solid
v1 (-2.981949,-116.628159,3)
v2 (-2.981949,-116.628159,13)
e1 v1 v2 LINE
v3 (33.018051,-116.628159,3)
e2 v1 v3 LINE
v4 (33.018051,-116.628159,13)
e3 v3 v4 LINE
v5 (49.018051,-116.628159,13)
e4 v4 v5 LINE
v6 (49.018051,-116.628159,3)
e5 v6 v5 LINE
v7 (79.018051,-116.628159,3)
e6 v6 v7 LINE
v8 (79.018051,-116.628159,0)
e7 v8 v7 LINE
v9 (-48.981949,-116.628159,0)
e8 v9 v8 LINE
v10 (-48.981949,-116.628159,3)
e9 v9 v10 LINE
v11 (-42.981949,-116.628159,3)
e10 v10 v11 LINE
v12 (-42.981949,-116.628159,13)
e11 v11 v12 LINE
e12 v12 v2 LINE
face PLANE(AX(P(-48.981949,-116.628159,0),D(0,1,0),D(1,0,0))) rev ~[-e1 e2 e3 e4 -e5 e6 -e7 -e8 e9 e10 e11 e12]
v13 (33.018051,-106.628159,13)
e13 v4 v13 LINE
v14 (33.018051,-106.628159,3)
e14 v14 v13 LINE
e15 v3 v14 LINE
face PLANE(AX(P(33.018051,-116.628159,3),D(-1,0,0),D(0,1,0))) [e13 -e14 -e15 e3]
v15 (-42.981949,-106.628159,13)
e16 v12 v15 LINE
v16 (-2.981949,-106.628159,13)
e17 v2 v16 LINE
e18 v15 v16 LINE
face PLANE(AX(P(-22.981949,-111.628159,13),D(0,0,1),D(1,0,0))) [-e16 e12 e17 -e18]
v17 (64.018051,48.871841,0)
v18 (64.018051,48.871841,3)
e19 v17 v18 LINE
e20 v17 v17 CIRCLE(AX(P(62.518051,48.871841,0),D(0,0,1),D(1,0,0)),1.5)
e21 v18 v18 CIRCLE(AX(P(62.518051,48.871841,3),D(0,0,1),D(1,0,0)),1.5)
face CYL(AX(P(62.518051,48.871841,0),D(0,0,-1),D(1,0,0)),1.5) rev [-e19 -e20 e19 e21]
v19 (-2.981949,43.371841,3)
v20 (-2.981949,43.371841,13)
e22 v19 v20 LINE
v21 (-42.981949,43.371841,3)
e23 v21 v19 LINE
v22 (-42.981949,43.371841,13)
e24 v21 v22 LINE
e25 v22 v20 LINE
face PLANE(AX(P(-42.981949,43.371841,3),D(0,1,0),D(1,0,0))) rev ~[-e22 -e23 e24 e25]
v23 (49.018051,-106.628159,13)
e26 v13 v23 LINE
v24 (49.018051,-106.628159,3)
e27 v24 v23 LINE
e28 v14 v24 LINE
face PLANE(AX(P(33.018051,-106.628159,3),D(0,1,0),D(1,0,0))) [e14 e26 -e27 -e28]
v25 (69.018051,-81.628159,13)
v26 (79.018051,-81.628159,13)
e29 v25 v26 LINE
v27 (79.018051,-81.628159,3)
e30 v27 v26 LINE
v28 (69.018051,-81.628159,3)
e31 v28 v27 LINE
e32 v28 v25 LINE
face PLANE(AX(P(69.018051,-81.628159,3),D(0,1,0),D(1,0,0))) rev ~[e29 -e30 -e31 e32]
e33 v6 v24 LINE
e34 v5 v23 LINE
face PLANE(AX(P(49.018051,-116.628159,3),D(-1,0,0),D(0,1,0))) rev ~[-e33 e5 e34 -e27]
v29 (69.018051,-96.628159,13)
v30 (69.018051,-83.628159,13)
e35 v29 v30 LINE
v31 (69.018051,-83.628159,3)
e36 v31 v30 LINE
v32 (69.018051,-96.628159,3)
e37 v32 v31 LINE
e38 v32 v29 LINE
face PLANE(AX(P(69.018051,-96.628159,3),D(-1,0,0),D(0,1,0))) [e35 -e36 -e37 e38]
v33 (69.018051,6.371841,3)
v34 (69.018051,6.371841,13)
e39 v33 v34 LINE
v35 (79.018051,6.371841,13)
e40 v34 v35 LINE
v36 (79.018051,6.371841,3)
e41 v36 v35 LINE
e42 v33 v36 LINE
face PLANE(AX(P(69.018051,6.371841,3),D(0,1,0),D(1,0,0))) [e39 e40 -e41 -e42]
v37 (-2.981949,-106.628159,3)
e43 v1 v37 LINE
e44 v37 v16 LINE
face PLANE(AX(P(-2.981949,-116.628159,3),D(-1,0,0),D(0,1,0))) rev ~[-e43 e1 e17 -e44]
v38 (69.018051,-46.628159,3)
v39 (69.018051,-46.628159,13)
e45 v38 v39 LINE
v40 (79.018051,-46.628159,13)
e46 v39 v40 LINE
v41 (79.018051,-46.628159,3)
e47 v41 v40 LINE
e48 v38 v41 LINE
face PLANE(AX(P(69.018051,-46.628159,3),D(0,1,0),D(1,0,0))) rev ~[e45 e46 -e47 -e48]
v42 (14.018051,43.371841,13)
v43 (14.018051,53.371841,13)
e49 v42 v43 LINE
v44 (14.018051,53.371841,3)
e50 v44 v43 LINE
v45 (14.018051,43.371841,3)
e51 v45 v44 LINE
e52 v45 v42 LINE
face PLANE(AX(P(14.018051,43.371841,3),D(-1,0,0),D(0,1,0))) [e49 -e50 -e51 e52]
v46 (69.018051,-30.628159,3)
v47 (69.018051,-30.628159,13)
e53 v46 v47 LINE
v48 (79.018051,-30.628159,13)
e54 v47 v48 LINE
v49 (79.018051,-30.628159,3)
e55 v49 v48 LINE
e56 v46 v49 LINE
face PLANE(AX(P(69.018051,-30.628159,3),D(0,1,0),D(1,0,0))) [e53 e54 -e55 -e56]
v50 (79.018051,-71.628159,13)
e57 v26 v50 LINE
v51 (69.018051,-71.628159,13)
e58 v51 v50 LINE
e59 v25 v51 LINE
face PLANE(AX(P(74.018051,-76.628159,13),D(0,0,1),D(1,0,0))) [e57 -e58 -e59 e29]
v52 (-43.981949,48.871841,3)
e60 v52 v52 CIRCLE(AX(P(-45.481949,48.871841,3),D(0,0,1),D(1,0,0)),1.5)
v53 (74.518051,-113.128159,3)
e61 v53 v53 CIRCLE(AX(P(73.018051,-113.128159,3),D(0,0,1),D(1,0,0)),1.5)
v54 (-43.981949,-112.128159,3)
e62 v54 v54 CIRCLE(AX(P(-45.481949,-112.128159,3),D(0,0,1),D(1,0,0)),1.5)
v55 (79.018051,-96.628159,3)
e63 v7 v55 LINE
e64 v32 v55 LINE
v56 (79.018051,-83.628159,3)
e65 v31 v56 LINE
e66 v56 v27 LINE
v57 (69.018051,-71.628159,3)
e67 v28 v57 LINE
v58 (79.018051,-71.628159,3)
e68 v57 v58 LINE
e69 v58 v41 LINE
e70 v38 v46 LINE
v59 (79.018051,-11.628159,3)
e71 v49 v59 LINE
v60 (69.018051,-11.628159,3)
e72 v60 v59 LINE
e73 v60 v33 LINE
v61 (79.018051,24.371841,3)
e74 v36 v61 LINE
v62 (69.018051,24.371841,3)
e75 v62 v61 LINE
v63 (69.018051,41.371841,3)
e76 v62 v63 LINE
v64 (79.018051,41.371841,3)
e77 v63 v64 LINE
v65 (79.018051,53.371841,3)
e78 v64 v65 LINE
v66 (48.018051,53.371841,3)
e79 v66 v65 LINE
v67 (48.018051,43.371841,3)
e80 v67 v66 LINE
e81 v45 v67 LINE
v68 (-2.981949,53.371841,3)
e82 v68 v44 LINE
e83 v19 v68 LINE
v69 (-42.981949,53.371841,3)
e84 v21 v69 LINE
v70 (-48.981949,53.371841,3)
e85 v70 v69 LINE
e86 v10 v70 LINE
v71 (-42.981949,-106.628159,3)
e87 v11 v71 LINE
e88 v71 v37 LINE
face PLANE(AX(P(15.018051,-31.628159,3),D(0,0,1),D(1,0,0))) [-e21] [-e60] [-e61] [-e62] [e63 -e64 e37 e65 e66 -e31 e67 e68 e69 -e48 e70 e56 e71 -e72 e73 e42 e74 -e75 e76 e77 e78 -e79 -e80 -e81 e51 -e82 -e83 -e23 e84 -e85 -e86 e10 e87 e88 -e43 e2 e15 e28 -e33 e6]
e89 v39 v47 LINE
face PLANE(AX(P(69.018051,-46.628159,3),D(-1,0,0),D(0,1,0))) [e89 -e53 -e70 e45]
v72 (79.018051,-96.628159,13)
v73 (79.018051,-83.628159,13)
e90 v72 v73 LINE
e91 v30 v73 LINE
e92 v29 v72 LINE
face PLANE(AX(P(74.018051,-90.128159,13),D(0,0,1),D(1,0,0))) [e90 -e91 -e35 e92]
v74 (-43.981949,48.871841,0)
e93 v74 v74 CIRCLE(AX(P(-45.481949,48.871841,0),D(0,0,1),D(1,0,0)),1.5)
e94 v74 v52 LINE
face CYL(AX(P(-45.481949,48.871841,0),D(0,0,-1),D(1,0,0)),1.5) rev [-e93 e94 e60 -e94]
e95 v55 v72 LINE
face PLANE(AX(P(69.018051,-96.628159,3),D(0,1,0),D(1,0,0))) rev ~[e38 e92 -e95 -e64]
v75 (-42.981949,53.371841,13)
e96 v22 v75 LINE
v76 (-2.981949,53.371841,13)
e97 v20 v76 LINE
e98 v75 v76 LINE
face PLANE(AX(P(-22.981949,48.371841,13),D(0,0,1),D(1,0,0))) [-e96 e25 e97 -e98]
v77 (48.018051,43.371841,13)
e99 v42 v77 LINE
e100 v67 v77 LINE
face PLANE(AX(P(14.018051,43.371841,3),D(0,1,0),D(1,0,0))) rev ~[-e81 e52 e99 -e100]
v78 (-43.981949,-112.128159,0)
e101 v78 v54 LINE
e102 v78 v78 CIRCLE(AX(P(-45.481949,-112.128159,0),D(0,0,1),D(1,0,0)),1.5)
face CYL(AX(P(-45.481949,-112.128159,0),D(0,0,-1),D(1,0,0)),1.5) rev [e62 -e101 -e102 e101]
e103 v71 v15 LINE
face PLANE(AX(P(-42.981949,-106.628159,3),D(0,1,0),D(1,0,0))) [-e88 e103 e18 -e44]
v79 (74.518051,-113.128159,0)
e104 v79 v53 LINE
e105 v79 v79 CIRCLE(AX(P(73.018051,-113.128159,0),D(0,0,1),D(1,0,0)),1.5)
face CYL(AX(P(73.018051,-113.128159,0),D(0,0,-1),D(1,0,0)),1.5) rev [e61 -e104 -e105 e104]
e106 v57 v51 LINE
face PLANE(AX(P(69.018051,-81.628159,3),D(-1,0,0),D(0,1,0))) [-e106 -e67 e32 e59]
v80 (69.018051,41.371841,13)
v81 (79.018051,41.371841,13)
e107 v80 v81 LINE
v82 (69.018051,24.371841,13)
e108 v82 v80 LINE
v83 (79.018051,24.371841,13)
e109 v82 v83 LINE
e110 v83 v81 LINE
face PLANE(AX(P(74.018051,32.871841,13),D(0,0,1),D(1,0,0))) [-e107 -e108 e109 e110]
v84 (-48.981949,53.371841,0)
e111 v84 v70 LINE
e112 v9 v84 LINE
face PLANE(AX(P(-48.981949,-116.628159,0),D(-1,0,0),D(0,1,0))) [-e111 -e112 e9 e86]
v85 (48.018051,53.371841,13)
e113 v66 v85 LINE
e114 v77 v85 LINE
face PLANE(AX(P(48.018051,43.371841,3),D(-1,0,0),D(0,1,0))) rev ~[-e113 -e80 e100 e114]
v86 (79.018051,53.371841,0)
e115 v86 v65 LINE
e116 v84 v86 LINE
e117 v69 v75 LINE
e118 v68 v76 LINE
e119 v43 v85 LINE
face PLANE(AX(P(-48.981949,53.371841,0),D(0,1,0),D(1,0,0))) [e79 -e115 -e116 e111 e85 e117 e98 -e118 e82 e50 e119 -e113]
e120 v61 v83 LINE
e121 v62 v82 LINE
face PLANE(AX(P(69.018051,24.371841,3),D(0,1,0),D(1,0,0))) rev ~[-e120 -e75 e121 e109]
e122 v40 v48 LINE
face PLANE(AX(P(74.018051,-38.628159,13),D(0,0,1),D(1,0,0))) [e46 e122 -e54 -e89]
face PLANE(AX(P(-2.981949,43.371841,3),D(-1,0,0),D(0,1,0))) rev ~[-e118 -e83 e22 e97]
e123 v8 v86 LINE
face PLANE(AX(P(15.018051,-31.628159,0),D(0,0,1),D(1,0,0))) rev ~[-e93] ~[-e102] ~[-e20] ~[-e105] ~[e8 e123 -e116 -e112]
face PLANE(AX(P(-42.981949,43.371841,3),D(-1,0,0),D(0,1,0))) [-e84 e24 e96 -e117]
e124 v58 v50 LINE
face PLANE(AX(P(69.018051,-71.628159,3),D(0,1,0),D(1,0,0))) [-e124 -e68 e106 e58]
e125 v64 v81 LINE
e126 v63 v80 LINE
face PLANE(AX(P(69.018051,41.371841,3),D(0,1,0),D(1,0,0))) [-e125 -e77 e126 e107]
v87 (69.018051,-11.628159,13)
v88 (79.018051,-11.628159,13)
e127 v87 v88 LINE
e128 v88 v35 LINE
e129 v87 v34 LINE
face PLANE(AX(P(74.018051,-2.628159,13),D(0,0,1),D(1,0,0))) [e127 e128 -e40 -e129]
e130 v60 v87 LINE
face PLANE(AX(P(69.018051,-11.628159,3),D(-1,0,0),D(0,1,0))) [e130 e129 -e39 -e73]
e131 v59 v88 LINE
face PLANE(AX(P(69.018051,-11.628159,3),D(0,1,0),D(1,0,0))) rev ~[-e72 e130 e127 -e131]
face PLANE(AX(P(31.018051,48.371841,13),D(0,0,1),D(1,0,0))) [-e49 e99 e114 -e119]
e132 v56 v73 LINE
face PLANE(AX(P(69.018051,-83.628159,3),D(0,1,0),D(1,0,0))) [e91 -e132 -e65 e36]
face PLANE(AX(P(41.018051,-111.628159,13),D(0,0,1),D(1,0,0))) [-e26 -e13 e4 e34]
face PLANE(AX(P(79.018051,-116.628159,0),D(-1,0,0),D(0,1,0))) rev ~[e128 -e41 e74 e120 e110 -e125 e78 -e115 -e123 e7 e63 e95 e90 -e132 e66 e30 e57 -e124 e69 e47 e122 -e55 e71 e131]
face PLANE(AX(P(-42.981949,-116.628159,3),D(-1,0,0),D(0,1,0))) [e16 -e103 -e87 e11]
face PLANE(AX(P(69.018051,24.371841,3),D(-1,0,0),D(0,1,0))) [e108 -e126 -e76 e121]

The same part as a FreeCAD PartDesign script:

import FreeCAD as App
import Part
import Sketcher

V = App.Vector
Q = App.Units.Quantity


def add_polygon(sketch, points):
    """Adds a closed chain of lines whose ends are joined by coincident constraints."""
    first, n = sketch.GeometryCount, len(points)
    for a, b in zip(points, points[1:] + points[:1]):
        sketch.addGeometry(Part.LineSegment(App.Vector(*a, 0), App.Vector(*b, 0)), False)
    for i in range(n):
        sketch.addConstraint(Sketcher.Constraint("Coincident", first + i, 2, first + (i + 1) % n, 1))

doc = App.newDocument("Part")
body = doc.addObject("PartDesign::Body", "Body")

# Sketch on XY plane
sketch1 = doc.addObject("Sketcher::SketchObject", "Sketch")
body.addObject(sketch1)
sketch1.AttachmentSupport = (doc.XY_Plane, [""])
sketch1.MapMode = "FlatFace"
add_polygon(sketch1, [(-49, 53.4), (-49, -116.6), (79, -116.6), (79, 53.4)])  # lines 0-3
sketch1.addGeometry(Part.Circle(V(-45.5, -112.1, 0), V(0, 0, 1), 1.5), False)  # 4
sketch1.addGeometry(Part.Circle(V(73, -113.1, 0), V(0, 0, 1), 1.5), False)  # 5
sketch1.addGeometry(Part.Circle(V(-45.5, 48.9, 0), V(0, 0, 1), 1.5), False)  # 6
sketch1.addGeometry(Part.Circle(V(62.5, 48.9, 0), V(0, 0, 1), 1.5), False)  # 7
sketch1.addConstraint(Sketcher.Constraint("Vertical", 0))
sketch1.addConstraint(Sketcher.Constraint("Horizontal", 1))
sketch1.addConstraint(Sketcher.Constraint("Vertical", 2))
sketch1.addConstraint(Sketcher.Constraint("Horizontal", 3))
sketch1.addConstraint(Sketcher.Constraint("Equal", 4, 5))
sketch1.addConstraint(Sketcher.Constraint("Equal", 5, 6))
sketch1.addConstraint(Sketcher.Constraint("Equal", 6, 7))
sketch1.addConstraint(Sketcher.Constraint("Horizontal", 6, 3, 7, 3))
sketch1.addConstraint(Sketcher.Constraint("Vertical", 4, 3, 6, 3))
sketch1.addConstraint(Sketcher.Constraint("Diameter", 4, Q("3 mm")))
sketch1.addConstraint(Sketcher.Constraint("DistanceX", 1, 1, 1, 2, Q("128 mm")))
sketch1.addConstraint(Sketcher.Constraint("DistanceY", 0, 2, 0, 1, Q("170 mm")))
sketch1.addConstraint(Sketcher.Constraint("DistanceY", 5, 3, 4, 3, Q("1 mm")))
sketch1.addConstraint(Sketcher.Constraint("DistanceY", 4, 3, 6, 3, Q("161 mm")))
sketch1.addConstraint(Sketcher.Constraint("DistanceX", 6, 3, 7, 3, Q("108 mm")))
sketch1.addConstraint(Sketcher.Constraint("DistanceX", 0, 2, 5, 3, Q("122 mm")))
sketch1.addConstraint(Sketcher.Constraint("DistanceX", 4, 3, 5, 3, Q("118.5 mm")))
sketch1.addConstraint(Sketcher.Constraint("DistanceY", 0, 2, 4, 3, Q("4.5 mm")))
sketch1.addConstraint(Sketcher.Constraint("DistanceX", 4, 3, -1, 1, Q("45.481949 mm")))
sketch1.addConstraint(Sketcher.Constraint("DistanceY", 4, 3, -1, 1, Q("112.128159 mm")))
pad1 = doc.addObject("PartDesign::Pad", "Pad")
body.addObject(pad1)
pad1.Profile = sketch1
pad1.Length = 3

# Sketch on XY plane
sketch2 = doc.addObject("Sketcher::SketchObject", "Sketch001")
body.addObject(sketch2)
sketch2.AttachmentSupport = (doc.XY_Plane, [""])
sketch2.MapMode = "FlatFace"
sketch2.AttachmentOffset = App.Placement(V(0, 0, 3), App.Rotation())
add_polygon(sketch2, [(-43, -107), (-43, -117), (-3, -117), (-3, -107)])  # lines 0-3
add_polygon(sketch2, [(33, -107), (33, -117), (49, -117), (49, -107)])  # lines 4-7
add_polygon(sketch2, [(69, -84), (69, -97), (79, -97), (79, -84)])  # lines 8-11
add_polygon(sketch2, [(69, -72), (69, -82), (79, -82), (79, -72)])  # lines 12-15
add_polygon(sketch2, [(69, -31), (69, -47), (79, -47), (79, -31)])  # lines 16-19
add_polygon(sketch2, [(69, 6), (69, -12), (79, -12), (79, 6)])  # lines 20-23
add_polygon(sketch2, [(69, 41), (69, 24), (79, 24), (79, 41)])  # lines 24-27
add_polygon(sketch2, [(14, 53), (14, 43), (48, 43), (48, 53)])  # lines 28-31
add_polygon(sketch2, [(-43, 53), (-43, 43), (-3, 43), (-3, 53)])  # lines 32-35
sketch2.addConstraint(Sketcher.Constraint("Vertical", 0))
sketch2.addConstraint(Sketcher.Constraint("Horizontal", 1))
sketch2.addConstraint(Sketcher.Constraint("Vertical", 2))
sketch2.addConstraint(Sketcher.Constraint("Horizontal", 3))
sketch2.addConstraint(Sketcher.Constraint("Vertical", 4))
sketch2.addConstraint(Sketcher.Constraint("Horizontal", 5))
sketch2.addConstraint(Sketcher.Constraint("Vertical", 6))
sketch2.addConstraint(Sketcher.Constraint("Horizontal", 7))
sketch2.addConstraint(Sketcher.Constraint("Vertical", 8))
sketch2.addConstraint(Sketcher.Constraint("Horizontal", 9))
sketch2.addConstraint(Sketcher.Constraint("Vertical", 10))
sketch2.addConstraint(Sketcher.Constraint("Horizontal", 11))
sketch2.addConstraint(Sketcher.Constraint("Vertical", 12))
sketch2.addConstraint(Sketcher.Constraint("Horizontal", 13))
sketch2.addConstraint(Sketcher.Constraint("Vertical", 14))
sketch2.addConstraint(Sketcher.Constraint("Horizontal", 15))
sketch2.addConstraint(Sketcher.Constraint("Vertical", 16))
sketch2.addConstraint(Sketcher.Constraint("Horizontal", 17))
sketch2.addConstraint(Sketcher.Constraint("Vertical", 18))
sketch2.addConstraint(Sketcher.Constraint("Horizontal", 19))
sketch2.addConstraint(Sketcher.Constraint("Vertical", 20))
sketch2.addConstraint(Sketcher.Constraint("Horizontal", 21))
sketch2.addConstraint(Sketcher.Constraint("Vertical", 22))
sketch2.addConstraint(Sketcher.Constraint("Horizontal", 23))
sketch2.addConstraint(Sketcher.Constraint("Vertical", 24))
sketch2.addConstraint(Sketcher.Constraint("Horizontal", 25))
sketch2.addConstraint(Sketcher.Constraint("Vertical", 26))
sketch2.addConstraint(Sketcher.Constraint("Horizontal", 27))
sketch2.addConstraint(Sketcher.Constraint("Vertical", 28))
sketch2.addConstraint(Sketcher.Constraint("Horizontal", 29))
sketch2.addConstraint(Sketcher.Constraint("Vertical", 30))
sketch2.addConstraint(Sketcher.Constraint("Horizontal", 31))
sketch2.addConstraint(Sketcher.Constraint("Vertical", 32))
sketch2.addConstraint(Sketcher.Constraint("Horizontal", 33))
sketch2.addConstraint(Sketcher.Constraint("Vertical", 34))
sketch2.addConstraint(Sketcher.Constraint("Horizontal", 35))
sketch2.addConstraint(Sketcher.Constraint("Horizontal", 1, 2, 4, 2))
sketch2.addConstraint(Sketcher.Constraint("Horizontal", 3, 2, 6, 2))
sketch2.addConstraint(Sketcher.Constraint("Horizontal", 29, 2, 32, 2))
sketch2.addConstraint(Sketcher.Constraint("Horizontal", 31, 2, 34, 2))
sketch2.addConstraint(Sketcher.Constraint("Vertical", 11, 2, 12, 2))
sketch2.addConstraint(Sketcher.Constraint("Vertical", 10, 2, 13, 2))
sketch2.addConstraint(Sketcher.Constraint("Vertical", 15, 2, 16, 2))
sketch2.addConstraint(Sketcher.Constraint("Vertical", 14, 2, 17, 2))
sketch2.addConstraint(Sketcher.Constraint("Vertical", 19, 2, 20, 2))
sketch2.addConstraint(Sketcher.Constraint("Vertical", 18, 2, 21, 2))
sketch2.addConstraint(Sketcher.Constraint("Vertical", 23, 2, 24, 2))
sketch2.addConstraint(Sketcher.Constraint("Vertical", 22, 2, 25, 2))
sketch2.addConstraint(Sketcher.Constraint("Vertical", 3, 2, 32, 2))
sketch2.addConstraint(Sketcher.Constraint("Vertical", 2, 2, 33, 2))
sketch2.addConstraint(Sketcher.Constraint("Equal", 27, 0))
sketch2.addConstraint(Sketcher.Constraint("Equal", 6, 12))
sketch2.addConstraint(Sketcher.Constraint("Equal", 7, 16))
sketch2.addConstraint(Sketcher.Constraint("Equal", 14, 28))
sketch2.addConstraint(Sketcher.Constraint("DistanceX", 1, 1, 1, 2, Q("40 mm")))
sketch2.addConstraint(Sketcher.Constraint("DistanceX", 5, 1, 5, 2, Q("16 mm")))
sketch2.addConstraint(Sketcher.Constraint("DistanceX", 9, 1, 9, 2, Q("10 mm")))
sketch2.addConstraint(Sketcher.Constraint("DistanceX", 29, 1, 29, 2, Q("34 mm")))
sketch2.addConstraint(Sketcher.Constraint("DistanceY", 8, 2, 8, 1, Q("13 mm")))
sketch2.addConstraint(Sketcher.Constraint("DistanceY", 20, 2, 20, 1, Q("18 mm")))
sketch2.addConstraint(Sketcher.Constraint("DistanceY", 24, 2, 24, 1, Q("17 mm")))
sketch2.addConstraint(Sketcher.Constraint("DistanceX", 1, 2, 4, 2, Q("36 mm")))
sketch2.addConstraint(Sketcher.Constraint("DistanceX", 6, 2, 8, 2, Q("20 mm")))
sketch2.addConstraint(Sketcher.Constraint("DistanceY", 6, 2, 8, 2, Q("10 mm")))
sketch2.addConstraint(Sketcher.Constraint("DistanceY", 11, 2, 12, 2, Q("2 mm")))
sketch2.addConstraint(Sketcher.Constraint("DistanceY", 15, 2, 16, 2, Q("25 mm")))
sketch2.addConstraint(Sketcher.Constraint("DistanceY", 19, 2, 20, 2, Q("19 mm")))
sketch2.addConstraint(Sketcher.Constraint("DistanceY", 23, 2, 24, 2, Q("18 mm")))
sketch2.addConstraint(Sketcher.Constraint("DistanceX", 28, 2, 27, 2, Q("55 mm")))
sketch2.addConstraint(Sketcher.Constraint("DistanceY", 27, 2, 28, 2, Q("2 mm")))
sketch2.addConstraint(Sketcher.Constraint("DistanceX", 0, 2, -1, 1, Q("42.981949 mm")))
sketch2.addConstraint(Sketcher.Constraint("DistanceY", 0, 2, -1, 1, Q("116.628159 mm")))
pad2 = doc.addObject("PartDesign::Pad", "Pad001")
body.addObject(pad2)
pad2.Profile = sketch2
pad2.Length = 10

doc.recompute()
